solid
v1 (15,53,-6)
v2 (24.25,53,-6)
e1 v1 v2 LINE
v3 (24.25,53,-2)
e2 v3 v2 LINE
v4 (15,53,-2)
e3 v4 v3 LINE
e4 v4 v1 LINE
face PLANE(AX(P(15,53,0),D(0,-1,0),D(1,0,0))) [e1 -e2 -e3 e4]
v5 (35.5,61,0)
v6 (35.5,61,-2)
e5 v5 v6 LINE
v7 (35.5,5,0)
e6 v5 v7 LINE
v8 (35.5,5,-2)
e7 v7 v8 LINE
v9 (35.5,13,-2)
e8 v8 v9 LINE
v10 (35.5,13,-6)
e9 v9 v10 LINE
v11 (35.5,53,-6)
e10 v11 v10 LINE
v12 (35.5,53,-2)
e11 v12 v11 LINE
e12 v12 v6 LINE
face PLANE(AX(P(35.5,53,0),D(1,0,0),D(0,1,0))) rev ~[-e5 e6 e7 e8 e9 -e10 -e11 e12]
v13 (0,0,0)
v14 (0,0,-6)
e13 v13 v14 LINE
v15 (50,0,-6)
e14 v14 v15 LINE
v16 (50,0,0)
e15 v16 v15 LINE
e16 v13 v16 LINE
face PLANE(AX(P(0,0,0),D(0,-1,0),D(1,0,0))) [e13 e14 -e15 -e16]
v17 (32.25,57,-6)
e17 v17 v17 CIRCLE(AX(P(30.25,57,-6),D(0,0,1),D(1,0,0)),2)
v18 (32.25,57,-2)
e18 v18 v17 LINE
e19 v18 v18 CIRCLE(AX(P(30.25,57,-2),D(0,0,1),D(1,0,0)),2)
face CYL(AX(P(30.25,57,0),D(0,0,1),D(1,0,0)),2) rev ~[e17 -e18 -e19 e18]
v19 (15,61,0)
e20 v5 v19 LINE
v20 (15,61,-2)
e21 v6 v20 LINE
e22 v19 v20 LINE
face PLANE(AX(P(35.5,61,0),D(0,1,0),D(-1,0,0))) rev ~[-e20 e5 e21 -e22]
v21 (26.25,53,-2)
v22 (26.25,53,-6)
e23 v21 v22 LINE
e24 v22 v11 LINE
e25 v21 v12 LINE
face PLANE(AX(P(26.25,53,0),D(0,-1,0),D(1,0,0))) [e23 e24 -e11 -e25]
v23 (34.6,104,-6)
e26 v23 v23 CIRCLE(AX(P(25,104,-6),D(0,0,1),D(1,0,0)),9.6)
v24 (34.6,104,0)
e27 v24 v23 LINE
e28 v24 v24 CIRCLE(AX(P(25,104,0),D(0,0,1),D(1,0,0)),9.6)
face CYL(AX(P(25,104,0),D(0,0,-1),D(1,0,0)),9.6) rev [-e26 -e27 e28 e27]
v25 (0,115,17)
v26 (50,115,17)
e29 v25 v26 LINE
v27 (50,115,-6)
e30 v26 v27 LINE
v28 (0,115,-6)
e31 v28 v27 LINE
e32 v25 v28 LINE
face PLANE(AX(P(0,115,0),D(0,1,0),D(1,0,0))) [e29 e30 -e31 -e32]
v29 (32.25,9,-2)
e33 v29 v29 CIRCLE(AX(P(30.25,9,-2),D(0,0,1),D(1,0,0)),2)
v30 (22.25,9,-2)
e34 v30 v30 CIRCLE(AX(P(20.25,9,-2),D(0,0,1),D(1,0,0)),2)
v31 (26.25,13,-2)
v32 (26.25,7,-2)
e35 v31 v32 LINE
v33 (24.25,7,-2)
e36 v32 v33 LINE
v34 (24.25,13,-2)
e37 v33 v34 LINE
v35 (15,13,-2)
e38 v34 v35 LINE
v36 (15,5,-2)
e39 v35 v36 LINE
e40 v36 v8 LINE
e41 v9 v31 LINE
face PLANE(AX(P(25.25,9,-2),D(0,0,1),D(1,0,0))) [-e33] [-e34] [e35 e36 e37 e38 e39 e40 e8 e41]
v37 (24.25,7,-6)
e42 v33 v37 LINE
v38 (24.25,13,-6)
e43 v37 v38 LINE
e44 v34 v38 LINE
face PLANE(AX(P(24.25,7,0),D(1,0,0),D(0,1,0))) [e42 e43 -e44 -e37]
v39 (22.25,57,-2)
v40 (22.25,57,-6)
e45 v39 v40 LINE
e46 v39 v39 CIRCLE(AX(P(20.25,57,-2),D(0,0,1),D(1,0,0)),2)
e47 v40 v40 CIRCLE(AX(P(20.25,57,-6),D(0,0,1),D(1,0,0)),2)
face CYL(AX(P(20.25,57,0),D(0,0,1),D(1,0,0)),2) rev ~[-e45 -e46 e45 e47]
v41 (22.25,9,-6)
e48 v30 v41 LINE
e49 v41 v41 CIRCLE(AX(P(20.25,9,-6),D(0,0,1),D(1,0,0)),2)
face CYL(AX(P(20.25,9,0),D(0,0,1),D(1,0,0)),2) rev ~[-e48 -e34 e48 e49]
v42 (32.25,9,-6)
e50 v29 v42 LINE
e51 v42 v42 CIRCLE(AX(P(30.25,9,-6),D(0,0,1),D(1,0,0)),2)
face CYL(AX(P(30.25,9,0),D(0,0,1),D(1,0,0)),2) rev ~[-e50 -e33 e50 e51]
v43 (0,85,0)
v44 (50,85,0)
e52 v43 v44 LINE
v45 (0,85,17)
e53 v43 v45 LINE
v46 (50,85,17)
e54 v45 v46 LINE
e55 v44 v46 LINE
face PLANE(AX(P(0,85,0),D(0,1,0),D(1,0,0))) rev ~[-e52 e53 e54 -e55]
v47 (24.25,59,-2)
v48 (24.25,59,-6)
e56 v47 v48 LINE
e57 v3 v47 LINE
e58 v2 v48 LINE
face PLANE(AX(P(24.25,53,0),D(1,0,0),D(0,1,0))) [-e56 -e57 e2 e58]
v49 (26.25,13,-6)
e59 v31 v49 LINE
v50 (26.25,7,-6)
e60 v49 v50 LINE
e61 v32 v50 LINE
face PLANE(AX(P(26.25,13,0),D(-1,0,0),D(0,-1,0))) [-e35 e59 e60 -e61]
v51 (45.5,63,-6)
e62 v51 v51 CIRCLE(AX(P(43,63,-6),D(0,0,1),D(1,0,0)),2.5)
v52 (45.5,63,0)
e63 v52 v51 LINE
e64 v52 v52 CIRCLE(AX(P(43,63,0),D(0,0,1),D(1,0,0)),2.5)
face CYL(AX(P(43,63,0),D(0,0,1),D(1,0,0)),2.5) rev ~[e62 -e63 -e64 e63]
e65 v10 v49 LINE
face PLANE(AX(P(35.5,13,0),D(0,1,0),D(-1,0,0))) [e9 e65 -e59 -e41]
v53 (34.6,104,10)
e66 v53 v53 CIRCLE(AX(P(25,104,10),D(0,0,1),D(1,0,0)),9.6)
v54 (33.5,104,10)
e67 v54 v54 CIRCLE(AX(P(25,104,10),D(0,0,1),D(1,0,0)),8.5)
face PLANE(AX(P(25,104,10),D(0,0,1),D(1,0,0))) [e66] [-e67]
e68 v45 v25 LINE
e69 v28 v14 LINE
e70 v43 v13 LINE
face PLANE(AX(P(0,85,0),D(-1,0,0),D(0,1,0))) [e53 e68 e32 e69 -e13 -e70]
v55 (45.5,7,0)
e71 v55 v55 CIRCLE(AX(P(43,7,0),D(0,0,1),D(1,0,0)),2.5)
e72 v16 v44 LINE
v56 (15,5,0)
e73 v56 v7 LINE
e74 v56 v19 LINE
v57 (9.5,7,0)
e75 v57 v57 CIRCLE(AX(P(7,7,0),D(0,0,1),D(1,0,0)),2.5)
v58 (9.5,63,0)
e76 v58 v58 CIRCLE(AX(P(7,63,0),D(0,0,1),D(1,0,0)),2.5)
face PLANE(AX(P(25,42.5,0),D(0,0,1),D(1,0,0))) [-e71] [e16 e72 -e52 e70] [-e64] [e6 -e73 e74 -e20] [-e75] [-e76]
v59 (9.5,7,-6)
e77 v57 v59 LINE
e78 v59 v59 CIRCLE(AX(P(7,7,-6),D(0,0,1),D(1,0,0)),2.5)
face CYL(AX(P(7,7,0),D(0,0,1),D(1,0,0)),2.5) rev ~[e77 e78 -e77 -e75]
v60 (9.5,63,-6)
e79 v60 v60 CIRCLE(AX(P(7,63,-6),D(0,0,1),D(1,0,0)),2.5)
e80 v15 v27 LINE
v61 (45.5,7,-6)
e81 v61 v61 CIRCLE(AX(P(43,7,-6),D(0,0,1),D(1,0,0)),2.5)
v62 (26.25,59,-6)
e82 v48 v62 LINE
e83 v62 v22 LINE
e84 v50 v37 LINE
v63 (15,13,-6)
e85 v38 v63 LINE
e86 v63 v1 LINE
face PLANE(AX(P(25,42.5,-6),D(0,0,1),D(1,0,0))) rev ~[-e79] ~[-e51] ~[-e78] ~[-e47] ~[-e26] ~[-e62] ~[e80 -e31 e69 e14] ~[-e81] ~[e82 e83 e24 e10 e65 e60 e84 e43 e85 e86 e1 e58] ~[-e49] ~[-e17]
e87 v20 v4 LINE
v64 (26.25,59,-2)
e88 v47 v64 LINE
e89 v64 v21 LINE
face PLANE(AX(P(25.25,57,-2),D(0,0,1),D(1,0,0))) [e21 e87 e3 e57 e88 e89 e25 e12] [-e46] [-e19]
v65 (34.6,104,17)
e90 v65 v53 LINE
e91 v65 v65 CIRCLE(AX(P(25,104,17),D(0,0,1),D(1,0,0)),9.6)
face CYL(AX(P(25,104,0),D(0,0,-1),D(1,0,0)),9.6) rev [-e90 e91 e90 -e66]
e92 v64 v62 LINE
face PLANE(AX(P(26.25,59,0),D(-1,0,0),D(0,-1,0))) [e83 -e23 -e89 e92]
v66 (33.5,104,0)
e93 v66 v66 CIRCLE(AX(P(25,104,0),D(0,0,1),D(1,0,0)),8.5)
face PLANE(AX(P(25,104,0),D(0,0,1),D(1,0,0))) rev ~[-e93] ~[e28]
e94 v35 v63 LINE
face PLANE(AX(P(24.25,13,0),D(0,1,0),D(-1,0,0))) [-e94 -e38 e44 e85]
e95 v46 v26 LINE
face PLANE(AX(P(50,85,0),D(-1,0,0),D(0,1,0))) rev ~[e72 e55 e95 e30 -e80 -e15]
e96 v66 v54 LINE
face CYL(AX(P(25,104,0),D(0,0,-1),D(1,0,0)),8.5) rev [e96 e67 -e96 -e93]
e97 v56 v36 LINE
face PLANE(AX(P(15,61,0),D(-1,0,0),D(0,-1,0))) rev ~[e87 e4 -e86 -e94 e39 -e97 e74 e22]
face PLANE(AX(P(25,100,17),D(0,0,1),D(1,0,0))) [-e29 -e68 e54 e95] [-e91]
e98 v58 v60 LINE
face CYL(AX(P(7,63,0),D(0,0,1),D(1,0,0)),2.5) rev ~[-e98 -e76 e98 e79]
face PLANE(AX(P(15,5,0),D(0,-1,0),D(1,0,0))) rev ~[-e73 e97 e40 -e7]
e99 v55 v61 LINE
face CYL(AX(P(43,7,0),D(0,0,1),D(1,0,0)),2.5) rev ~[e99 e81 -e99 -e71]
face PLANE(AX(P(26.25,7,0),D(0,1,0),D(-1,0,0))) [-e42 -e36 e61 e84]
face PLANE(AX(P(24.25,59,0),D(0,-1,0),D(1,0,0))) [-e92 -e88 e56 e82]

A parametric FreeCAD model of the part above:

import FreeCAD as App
import Part
import Sketcher


def add_polygon(sketch, points):
    """Adds a closed chain of lines whose ends are joined by coincident constraints."""
    first, n = sketch.GeometryCount, len(points)
    for a, b in zip(points, points[1:] + points[:1]):
        sketch.addGeometry(Part.LineSegment(App.Vector(*a, 0), App.Vector(*b, 0)), False)
    for i in range(n):
        sketch.addConstraint(Sketcher.Constraint("Coincident", first + i, 2, first + (i + 1) % n, 1))

doc = App.newDocument("Part")
params = doc.addObject("Spreadsheet::Sheet", "Params")
for row, (alias, value) in enumerate([
    ("sketch1_diameter", "5 mm"),
    ("sketch1_diameter2", "4 mm"),
    ("sketch1_diameter3", "19.2 mm"),
    ("sketch1_width", "50 mm"),
    ("sketch1_width2", "2 mm"),
    ("pad1_length", "6 mm"),
    ("sketch2_diameter", "4 mm"),
    ("sketch2_width", "2 mm"),
    ("sketch2_height", "8 mm"),
    ("sketch2_height2", "6 mm"),
    ("sketch2_width2", "20.5 mm"),
    ("pocket1_length", "2 mm"),
    ("sketch3_diameter", "19.2 mm"),
    ("sketch3_width", "50 mm"),
    ("sketch3_height", "30 mm"),
    ("pad2_length", "17 mm"),
    ("sketch4_diameter", "17 mm"),
    ("sketch4_diameter2", "19.2 mm"),
    ("pad3_length", "10 mm"),
], start=1):
    params.set(f"A{row}", alias)
    params.set(f"B{row}", "=" + value)
    params.setAlias(f"B{row}", alias)

body = doc.addObject("PartDesign::Body", "Body")

# Sketch on XY plane
sketch1 = doc.addObject("Sketcher::SketchObject", "Sketch")
body.addObject(sketch1)
sketch1.AttachmentSupport = (doc.XY_Plane, [""])
sketch1.MapMode = "FlatFace"
add_polygon(sketch1, [(0, 0), (50, 0), (50, 115), (0, 115)])  # lines 0-3
sketch1.addGeometry(Part.Circle(App.Vector(7, 7, 0), App.Vector(0, 0, 1), 2.5), False)  # 4
sketch1.addGeometry(Part.Circle(App.Vector(20.2, 9, 0), App.Vector(0, 0, 1), 2), False)  # 5
sketch1.addGeometry(Part.Circle(App.Vector(20.2, 57, 0), App.Vector(0, 0, 1), 2), False)  # 6
sketch1.addGeometry(Part.Circle(App.Vector(30.2, 9, 0), App.Vector(0, 0, 1), 2), False)  # 7
sketch1.addGeometry(Part.Circle(App.Vector(43, 7, 0), App.Vector(0, 0, 1), 2.5), False)  # 8
add_polygon(sketch1, [(35.5, 53), (35.5, 13), (26.2, 13), (26.2, 7), (24.2, 7), (24.2, 13), (15, 13), (15, 53), (24.2, 53), (24.2, 59), (26.2, 59), (26.2, 53)])  # lines 9-20
sketch1.addGeometry(Part.Circle(App.Vector(30.2, 57, 0), App.Vector(0, 0, 1), 2), False)  # 21
sketch1.addGeometry(Part.Circle(App.Vector(7, 63, 0), App.Vector(0, 0, 1), 2.5), False)  # 22
sketch1.addGeometry(Part.Circle(App.Vector(43, 63, 0), App.Vector(0, 0, 1), 2.5), False)  # 23
sketch1.addGeometry(Part.Circle(App.Vector(25, 104, 0), App.Vector(0, 0, 1), 9.6), False)  # 24
sketch1.addConstraint(Sketcher.Constraint("Horizontal", 0))
sketch1.addConstraint(Sketcher.Constraint("Vertical", 1))
sketch1.addConstraint(Sketcher.Constraint("Horizontal", 2))
sketch1.addConstraint(Sketcher.Constraint("Vertical", 3))
sketch1.addConstraint(Sketcher.Constraint("Vertical", 9))
sketch1.addConstraint(Sketcher.Constraint("Horizontal", 10))
sketch1.addConstraint(Sketcher.Constraint("Vertical", 11))
sketch1.addConstraint(Sketcher.Constraint("Horizontal", 12))
sketch1.addConstraint(Sketcher.Constraint("Vertical", 13))
sketch1.addConstraint(Sketcher.Constraint("Horizontal", 14))
sketch1.addConstraint(Sketcher.Constraint("Vertical", 15))
sketch1.addConstraint(Sketcher.Constraint("Horizontal", 16))
sketch1.addConstraint(Sketcher.Constraint("Vertical", 17))
sketch1.addConstraint(Sketcher.Constraint("Horizontal", 18))
sketch1.addConstraint(Sketcher.Constraint("Vertical", 19))
sketch1.addConstraint(Sketcher.Constraint("Horizontal", 20))
sketch1.addConstraint(Sketcher.Constraint("Coincident", 3, 2, -1, 1))
sketch1.addConstraint(Sketcher.Constraint("Equal", 5, 6))
sketch1.addConstraint(Sketcher.Constraint("Equal", 6, 7))
sketch1.addConstraint(Sketcher.Constraint("Equal", 4, 8))
sketch1.addConstraint(Sketcher.Constraint("Equal", 7, 21))
sketch1.addConstraint(Sketcher.Constraint("Equal", 8, 22))
sketch1.addConstraint(Sketcher.Constraint("Equal", 22, 23))
sketch1.addConstraint(Sketcher.Constraint("Horizontal", 5, 3, 7, 3))
sketch1.addConstraint(Sketcher.Constraint("Horizontal", 4, 3, 8, 3))
sketch1.addConstraint(Sketcher.Constraint("Horizontal", 6, 3, 21, 3))
sketch1.addConstraint(Sketcher.Constraint("Horizontal", 22, 3, 23, 3))
sketch1.addConstraint(Sketcher.Constraint("Horizontal", 8, 3, 11, 2))
sketch1.addConstraint(Sketcher.Constraint("Horizontal", 10, 2, 13, 2))
sketch1.addConstraint(Sketcher.Constraint("Horizontal", 16, 2, 19, 2))
sketch1.addConstraint(Sketcher.Constraint("Vertical", 5, 3, 6, 3))
sketch1.addConstraint(Sketcher.Constraint("Vertical", 7, 3, 21, 3))
sketch1.addConstraint(Sketcher.Constraint("Vertical", 4, 3, 22, 3))
sketch1.addConstraint(Sketcher.Constraint("Vertical", 8, 3, 23, 3))
sketch1.addConstraint(Sketcher.Constraint("Vertical", 13, 2, 16, 2))
sketch1.addConstraint(Sketcher.Constraint("Vertical", 11, 2, 18, 2))
sketch1.addConstraint(Sketcher.Constraint("Equal", 10, 14))
sketch1.addConstraint(Sketcher.Constraint("Equal", 13, 17))
sketch1.addConstraint(Sketcher.Constraint("Diameter", 4, 5.0))
sketch1.addConstraint(Sketcher.Constraint("Diameter", 5, 4.0))
sketch1.addConstraint(Sketcher.Constraint("Diameter", 24, 19.2))
sketch1.addConstraint(Sketcher.Constraint("DistanceX", 0, 1, 0, 2, 50.0))
sketch1.addConstraint(Sketcher.Constraint("DistanceX", 12, 2, 12, 1, 2.0))
sketch1.addConstraint(Sketcher.Constraint("DistanceY", 1, 1, 1, 2, 115.0))
sketch1.addConstraint(Sketcher.Constraint("DistanceY", 9, 2, 9, 1, 40.0))
sketch1.addConstraint(Sketcher.Constraint("DistanceY", 11, 2, 11, 1, 6.0))
sketch1.addConstraint(Sketcher.Constraint("DistanceX", -1, 1, 4, 3, 7.0))
sketch1.addConstraint(Sketcher.Constraint("DistanceY", -1, 1, 4, 3, 7.0))
sketch1.addConstraint(Sketcher.Constraint("DistanceY", -1, 1, 5, 3, 9.0))
sketch1.addConstraint(Sketcher.Constraint("DistanceY", -1, 1, 6, 3, 57.0))
sketch1.addConstraint(Sketcher.Constraint("DistanceX", -1, 1, 8, 3, 43.0))
sketch1.addConstraint(Sketcher.Constraint("DistanceY", -1, 1, 22, 3, 63.0))
sketch1.addConstraint(Sketcher.Constraint("DistanceX", -1, 1, 24, 3, 25.0))
sketch1.addConstraint(Sketcher.Constraint("DistanceY", -1, 1, 24, 3, 104.0))
sketch1.addConstraint(Sketcher.Constraint("DistanceX", -1, 1, 14, 2, 15.0))
sketch1.addConstraint(Sketcher.Constraint("DistanceX", 5, 3, 7, 3, 10.0))
sketch1.addConstraint(Sketcher.Constraint("DistanceX", 10, 2, 7, 3, 4.0))
sketch1.addConstraint(Sketcher.Constraint("DistanceX", 10, 2, 10, 1, 9.25))
sketch1.setExpression("Constraints[54]", "Params.sketch1_diameter")
sketch1.setExpression("Constraints[55]", "Params.sketch1_diameter2")
sketch1.setExpression("Constraints[56]", "Params.sketch1_diameter3")
sketch1.setExpression("Constraints[57]", "Params.sketch1_width")
sketch1.setExpression("Constraints[58]", "Params.sketch1_width2")
pad1 = doc.addObject("PartDesign::Pad", "Pad")
body.addObject(pad1)
pad1.Profile = sketch1
pad1.setExpression("Length", "Params.pad1_length")
pad1.Reversed = True

# Sketch on XY plane
sketch2 = doc.addObject("Sketcher::SketchObject", "Sketch001")
body.addObject(sketch2)
sketch2.AttachmentSupport = (doc.XY_Plane, [""])
sketch2.MapMode = "FlatFace"
add_polygon(sketch2, [(15, 61), (15, 53), (24.2, 53), (24.2, 59), (26.2, 59), (26.2, 53), (35.5, 53), (35.5, 61)])  # lines 0-7
sketch2.addGeometry(Part.Circle(App.Vector(20.2, 57, 0), App.Vector(0, 0, 1), 2), False)  # 8
sketch2.addGeometry(Part.Circle(App.Vector(30.2, 57, 0), App.Vector(0, 0, 1), 2), False)  # 9
add_polygon(sketch2, [(15, 13), (15, 5), (35.5, 5), (35.5, 13), (26.2, 13), (26.2, 7), (24.2, 7), (24.2, 13)])  # lines 10-17
sketch2.addGeometry(Part.Circle(App.Vector(20.2, 9, 0), App.Vector(0, 0, 1), 2), False)  # 18
sketch2.addGeometry(Part.Circle(App.Vector(30.2, 9, 0), App.Vector(0, 0, 1), 2), False)  # 19
sketch2.addConstraint(Sketcher.Constraint("Vertical", 0))
sketch2.addConstraint(Sketcher.Constraint("Horizontal", 1))
sketch2.addConstraint(Sketcher.Constraint("Vertical", 2))
sketch2.addConstraint(Sketcher.Constraint("Horizontal", 3))
sketch2.addConstraint(Sketcher.Constraint("Vertical", 4))
sketch2.addConstraint(Sketcher.Constraint("Horizontal", 5))
sketch2.addConstraint(Sketcher.Constraint("Vertical", 6))
sketch2.addConstraint(Sketcher.Constraint("Horizontal", 7))
sketch2.addConstraint(Sketcher.Constraint("Vertical", 10))
sketch2.addConstraint(Sketcher.Constraint("Horizontal", 11))
sketch2.addConstraint(Sketcher.Constraint("Vertical", 12))
sketch2.addConstraint(Sketcher.Constraint("Horizontal", 13))
sketch2.addConstraint(Sketcher.Constraint("Vertical", 14))
sketch2.addConstraint(Sketcher.Constraint("Horizontal", 15))
sketch2.addConstraint(Sketcher.Constraint("Vertical", 16))
sketch2.addConstraint(Sketcher.Constraint("Horizontal", 17))
sketch2.addConstraint(Sketcher.Constraint("Equal", 8, 9))
sketch2.addConstraint(Sketcher.Constraint("Equal", 9, 18))
sketch2.addConstraint(Sketcher.Constraint("Equal", 18, 19))
sketch2.addConstraint(Sketcher.Constraint("Horizontal", 8, 3, 9, 3))
sketch2.addConstraint(Sketcher.Constraint("Horizontal", 18, 3, 19, 3))
sketch2.addConstraint(Sketcher.Constraint("Horizontal", 1, 2, 4, 2))
sketch2.addConstraint(Sketcher.Constraint("Horizontal", 13, 2, 16, 2))
sketch2.addConstraint(Sketcher.Constraint("Vertical", 8, 3, 18, 3))
sketch2.addConstraint(Sketcher.Constraint("Vertical", 9, 3, 19, 3))
sketch2.addConstraint(Sketcher.Constraint("Vertical", 7, 2, 10, 2))
sketch2.addConstraint(Sketcher.Constraint("Vertical", 6, 2, 11, 2))
sketch2.addConstraint(Sketcher.Constraint("Vertical", 4, 2, 13, 2))
sketch2.addConstraint(Sketcher.Constraint("Vertical", 2, 2, 15, 2))
sketch2.addConstraint(Sketcher.Constraint("Equal", 1, 5))
sketch2.addConstraint(Sketcher.Constraint("Equal", 6, 10))
sketch2.addConstraint(Sketcher.Constraint("Equal", 4, 14))
sketch2.addConstraint(Sketcher.Constraint("Diameter", 8, 4.0))
sketch2.addConstraint(Sketcher.Constraint("DistanceX", 3, 1, 3, 2, 2.0))
sketch2.addConstraint(Sketcher.Constraint("DistanceY", 0, 2, 0, 1, 8.0))
sketch2.addConstraint(Sketcher.Constraint("DistanceY", 2, 1, 2, 2, 6.0))
sketch2.addConstraint(Sketcher.Constraint("DistanceX", 7, 2, 7, 1, 20.5))
sketch2.addConstraint(Sketcher.Constraint("DistanceY", -1, 1, 8, 3, 57.0))
sketch2.addConstraint(Sketcher.Constraint("DistanceY", -1, 1, 18, 3, 9.0))
sketch2.addConstraint(Sketcher.Constraint("DistanceX", -1, 1, 0, 2, 15.0))
sketch2.addConstraint(Sketcher.Constraint("DistanceY", -1, 1, 0, 2, 53.0))
sketch2.addConstraint(Sketcher.Constraint("DistanceY", -1, 1, 10, 2, 5.0))
sketch2.addConstraint(Sketcher.Constraint("DistanceX", 8, 3, 9, 3, 10.0))
sketch2.addConstraint(Sketcher.Constraint("DistanceX", 8, 3, 1, 2, 4.0))
sketch2.setExpression("Constraints[48]", "Params.sketch2_diameter")
sketch2.setExpression("Constraints[49]", "Params.sketch2_width")
sketch2.setExpression("Constraints[50]", "Params.sketch2_height")
sketch2.setExpression("Constraints[51]", "Params.sketch2_height2")
sketch2.setExpression("Constraints[52]", "Params.sketch2_width2")
pocket1 = doc.addObject("PartDesign::Pocket", "Pocket")
body.addObject(pocket1)
pocket1.Profile = sketch2
pocket1.setExpression("Length", "Params.pocket1_length")

# Sketch on XY plane
sketch3 = doc.addObject("Sketcher::SketchObject", "Sketch002")
body.addObject(sketch3)
sketch3.AttachmentSupport = (doc.XY_Plane, [""])
sketch3.MapMode = "FlatFace"
add_polygon(sketch3, [(0, 115), (0, 85), (50, 85), (50, 115)])  # lines 0-3
sketch3.addGeometry(Part.Circle(App.Vector(25, 104, 0), App.Vector(0, 0, 1), 10), False)  # 4
sketch3.addConstraint(Sketcher.Constraint("Vertical", 0))
sketch3.addConstraint(Sketcher.Constraint("Horizontal", 1))
sketch3.addConstraint(Sketcher.Constraint("Vertical", 2))
sketch3.addConstraint(Sketcher.Constraint("Horizontal", 3))
sketch3.addConstraint(Sketcher.Constraint("PointOnObject", 0, 2, -2))
sketch3.addConstraint(Sketcher.Constraint("Diameter", 4, 19.2))
sketch3.addConstraint(Sketcher.Constraint("DistanceX", 1, 1, 1, 2, 50.0))
sketch3.addConstraint(Sketcher.Constraint("DistanceY", 0, 2, 0, 1, 30.0))
sketch3.addConstraint(Sketcher.Constraint("DistanceX", -1, 1, 4, 3, 25.0))
sketch3.addConstraint(Sketcher.Constraint("DistanceY", -1, 1, 4, 3, 104.0))
sketch3.addConstraint(Sketcher.Constraint("DistanceY", -1, 1, 0, 2, 85.0))
sketch3.setExpression("Constraints[9]", "Params.sketch3_diameter")
sketch3.setExpression("Constraints[10]", "Params.sketch3_width")
sketch3.setExpression("Constraints[11]", "Params.sketch3_height")
pad2 = doc.addObject("PartDesign::Pad", "Pad001")
body.addObject(pad2)
pad2.Profile = sketch3
pad2.setExpression("Length", "Params.pad2_length")

# Sketch on XY plane
sketch4 = doc.addObject("Sketcher::SketchObject", "Sketch003")
body.addObject(sketch4)
sketch4.AttachmentSupport = (doc.XY_Plane, [""])
sketch4.MapMode = "FlatFace"
sketch4.addGeometry(Part.Circle(App.Vector(25, 104, 0), App.Vector(0, 0, 1), 10), False)
sketch4.addGeometry(Part.Circle(App.Vector(25, 104, 0), App.Vector(0, 0, 1), 8), False)
sketch4.addConstraint(Sketcher.Constraint("Coincident", 1, 3, 0, 3))
sketch4.addConstraint(Sketcher.Constraint("Diameter", 1, 17.0))
sketch4.addConstraint(Sketcher.Constraint("Diameter", 0, 19.2))
sketch4.addConstraint(Sketcher.Constraint("DistanceX", -1, 1, 0, 3, 25.0))
sketch4.addConstraint(Sketcher.Constraint("DistanceY", -1, 1, 0, 3, 104.0))
sketch4.setExpression("Constraints[1]", "Params.sketch4_diameter")
sketch4.setExpression("Constraints[2]", "Params.sketch4_diameter2")
pad3 = doc.addObject("PartDesign::Pad", "Pad002")
body.addObject(pad3)
pad3.Profile = sketch4
pad3.setExpression("Length", "Params.pad3_length")

doc.recompute()
